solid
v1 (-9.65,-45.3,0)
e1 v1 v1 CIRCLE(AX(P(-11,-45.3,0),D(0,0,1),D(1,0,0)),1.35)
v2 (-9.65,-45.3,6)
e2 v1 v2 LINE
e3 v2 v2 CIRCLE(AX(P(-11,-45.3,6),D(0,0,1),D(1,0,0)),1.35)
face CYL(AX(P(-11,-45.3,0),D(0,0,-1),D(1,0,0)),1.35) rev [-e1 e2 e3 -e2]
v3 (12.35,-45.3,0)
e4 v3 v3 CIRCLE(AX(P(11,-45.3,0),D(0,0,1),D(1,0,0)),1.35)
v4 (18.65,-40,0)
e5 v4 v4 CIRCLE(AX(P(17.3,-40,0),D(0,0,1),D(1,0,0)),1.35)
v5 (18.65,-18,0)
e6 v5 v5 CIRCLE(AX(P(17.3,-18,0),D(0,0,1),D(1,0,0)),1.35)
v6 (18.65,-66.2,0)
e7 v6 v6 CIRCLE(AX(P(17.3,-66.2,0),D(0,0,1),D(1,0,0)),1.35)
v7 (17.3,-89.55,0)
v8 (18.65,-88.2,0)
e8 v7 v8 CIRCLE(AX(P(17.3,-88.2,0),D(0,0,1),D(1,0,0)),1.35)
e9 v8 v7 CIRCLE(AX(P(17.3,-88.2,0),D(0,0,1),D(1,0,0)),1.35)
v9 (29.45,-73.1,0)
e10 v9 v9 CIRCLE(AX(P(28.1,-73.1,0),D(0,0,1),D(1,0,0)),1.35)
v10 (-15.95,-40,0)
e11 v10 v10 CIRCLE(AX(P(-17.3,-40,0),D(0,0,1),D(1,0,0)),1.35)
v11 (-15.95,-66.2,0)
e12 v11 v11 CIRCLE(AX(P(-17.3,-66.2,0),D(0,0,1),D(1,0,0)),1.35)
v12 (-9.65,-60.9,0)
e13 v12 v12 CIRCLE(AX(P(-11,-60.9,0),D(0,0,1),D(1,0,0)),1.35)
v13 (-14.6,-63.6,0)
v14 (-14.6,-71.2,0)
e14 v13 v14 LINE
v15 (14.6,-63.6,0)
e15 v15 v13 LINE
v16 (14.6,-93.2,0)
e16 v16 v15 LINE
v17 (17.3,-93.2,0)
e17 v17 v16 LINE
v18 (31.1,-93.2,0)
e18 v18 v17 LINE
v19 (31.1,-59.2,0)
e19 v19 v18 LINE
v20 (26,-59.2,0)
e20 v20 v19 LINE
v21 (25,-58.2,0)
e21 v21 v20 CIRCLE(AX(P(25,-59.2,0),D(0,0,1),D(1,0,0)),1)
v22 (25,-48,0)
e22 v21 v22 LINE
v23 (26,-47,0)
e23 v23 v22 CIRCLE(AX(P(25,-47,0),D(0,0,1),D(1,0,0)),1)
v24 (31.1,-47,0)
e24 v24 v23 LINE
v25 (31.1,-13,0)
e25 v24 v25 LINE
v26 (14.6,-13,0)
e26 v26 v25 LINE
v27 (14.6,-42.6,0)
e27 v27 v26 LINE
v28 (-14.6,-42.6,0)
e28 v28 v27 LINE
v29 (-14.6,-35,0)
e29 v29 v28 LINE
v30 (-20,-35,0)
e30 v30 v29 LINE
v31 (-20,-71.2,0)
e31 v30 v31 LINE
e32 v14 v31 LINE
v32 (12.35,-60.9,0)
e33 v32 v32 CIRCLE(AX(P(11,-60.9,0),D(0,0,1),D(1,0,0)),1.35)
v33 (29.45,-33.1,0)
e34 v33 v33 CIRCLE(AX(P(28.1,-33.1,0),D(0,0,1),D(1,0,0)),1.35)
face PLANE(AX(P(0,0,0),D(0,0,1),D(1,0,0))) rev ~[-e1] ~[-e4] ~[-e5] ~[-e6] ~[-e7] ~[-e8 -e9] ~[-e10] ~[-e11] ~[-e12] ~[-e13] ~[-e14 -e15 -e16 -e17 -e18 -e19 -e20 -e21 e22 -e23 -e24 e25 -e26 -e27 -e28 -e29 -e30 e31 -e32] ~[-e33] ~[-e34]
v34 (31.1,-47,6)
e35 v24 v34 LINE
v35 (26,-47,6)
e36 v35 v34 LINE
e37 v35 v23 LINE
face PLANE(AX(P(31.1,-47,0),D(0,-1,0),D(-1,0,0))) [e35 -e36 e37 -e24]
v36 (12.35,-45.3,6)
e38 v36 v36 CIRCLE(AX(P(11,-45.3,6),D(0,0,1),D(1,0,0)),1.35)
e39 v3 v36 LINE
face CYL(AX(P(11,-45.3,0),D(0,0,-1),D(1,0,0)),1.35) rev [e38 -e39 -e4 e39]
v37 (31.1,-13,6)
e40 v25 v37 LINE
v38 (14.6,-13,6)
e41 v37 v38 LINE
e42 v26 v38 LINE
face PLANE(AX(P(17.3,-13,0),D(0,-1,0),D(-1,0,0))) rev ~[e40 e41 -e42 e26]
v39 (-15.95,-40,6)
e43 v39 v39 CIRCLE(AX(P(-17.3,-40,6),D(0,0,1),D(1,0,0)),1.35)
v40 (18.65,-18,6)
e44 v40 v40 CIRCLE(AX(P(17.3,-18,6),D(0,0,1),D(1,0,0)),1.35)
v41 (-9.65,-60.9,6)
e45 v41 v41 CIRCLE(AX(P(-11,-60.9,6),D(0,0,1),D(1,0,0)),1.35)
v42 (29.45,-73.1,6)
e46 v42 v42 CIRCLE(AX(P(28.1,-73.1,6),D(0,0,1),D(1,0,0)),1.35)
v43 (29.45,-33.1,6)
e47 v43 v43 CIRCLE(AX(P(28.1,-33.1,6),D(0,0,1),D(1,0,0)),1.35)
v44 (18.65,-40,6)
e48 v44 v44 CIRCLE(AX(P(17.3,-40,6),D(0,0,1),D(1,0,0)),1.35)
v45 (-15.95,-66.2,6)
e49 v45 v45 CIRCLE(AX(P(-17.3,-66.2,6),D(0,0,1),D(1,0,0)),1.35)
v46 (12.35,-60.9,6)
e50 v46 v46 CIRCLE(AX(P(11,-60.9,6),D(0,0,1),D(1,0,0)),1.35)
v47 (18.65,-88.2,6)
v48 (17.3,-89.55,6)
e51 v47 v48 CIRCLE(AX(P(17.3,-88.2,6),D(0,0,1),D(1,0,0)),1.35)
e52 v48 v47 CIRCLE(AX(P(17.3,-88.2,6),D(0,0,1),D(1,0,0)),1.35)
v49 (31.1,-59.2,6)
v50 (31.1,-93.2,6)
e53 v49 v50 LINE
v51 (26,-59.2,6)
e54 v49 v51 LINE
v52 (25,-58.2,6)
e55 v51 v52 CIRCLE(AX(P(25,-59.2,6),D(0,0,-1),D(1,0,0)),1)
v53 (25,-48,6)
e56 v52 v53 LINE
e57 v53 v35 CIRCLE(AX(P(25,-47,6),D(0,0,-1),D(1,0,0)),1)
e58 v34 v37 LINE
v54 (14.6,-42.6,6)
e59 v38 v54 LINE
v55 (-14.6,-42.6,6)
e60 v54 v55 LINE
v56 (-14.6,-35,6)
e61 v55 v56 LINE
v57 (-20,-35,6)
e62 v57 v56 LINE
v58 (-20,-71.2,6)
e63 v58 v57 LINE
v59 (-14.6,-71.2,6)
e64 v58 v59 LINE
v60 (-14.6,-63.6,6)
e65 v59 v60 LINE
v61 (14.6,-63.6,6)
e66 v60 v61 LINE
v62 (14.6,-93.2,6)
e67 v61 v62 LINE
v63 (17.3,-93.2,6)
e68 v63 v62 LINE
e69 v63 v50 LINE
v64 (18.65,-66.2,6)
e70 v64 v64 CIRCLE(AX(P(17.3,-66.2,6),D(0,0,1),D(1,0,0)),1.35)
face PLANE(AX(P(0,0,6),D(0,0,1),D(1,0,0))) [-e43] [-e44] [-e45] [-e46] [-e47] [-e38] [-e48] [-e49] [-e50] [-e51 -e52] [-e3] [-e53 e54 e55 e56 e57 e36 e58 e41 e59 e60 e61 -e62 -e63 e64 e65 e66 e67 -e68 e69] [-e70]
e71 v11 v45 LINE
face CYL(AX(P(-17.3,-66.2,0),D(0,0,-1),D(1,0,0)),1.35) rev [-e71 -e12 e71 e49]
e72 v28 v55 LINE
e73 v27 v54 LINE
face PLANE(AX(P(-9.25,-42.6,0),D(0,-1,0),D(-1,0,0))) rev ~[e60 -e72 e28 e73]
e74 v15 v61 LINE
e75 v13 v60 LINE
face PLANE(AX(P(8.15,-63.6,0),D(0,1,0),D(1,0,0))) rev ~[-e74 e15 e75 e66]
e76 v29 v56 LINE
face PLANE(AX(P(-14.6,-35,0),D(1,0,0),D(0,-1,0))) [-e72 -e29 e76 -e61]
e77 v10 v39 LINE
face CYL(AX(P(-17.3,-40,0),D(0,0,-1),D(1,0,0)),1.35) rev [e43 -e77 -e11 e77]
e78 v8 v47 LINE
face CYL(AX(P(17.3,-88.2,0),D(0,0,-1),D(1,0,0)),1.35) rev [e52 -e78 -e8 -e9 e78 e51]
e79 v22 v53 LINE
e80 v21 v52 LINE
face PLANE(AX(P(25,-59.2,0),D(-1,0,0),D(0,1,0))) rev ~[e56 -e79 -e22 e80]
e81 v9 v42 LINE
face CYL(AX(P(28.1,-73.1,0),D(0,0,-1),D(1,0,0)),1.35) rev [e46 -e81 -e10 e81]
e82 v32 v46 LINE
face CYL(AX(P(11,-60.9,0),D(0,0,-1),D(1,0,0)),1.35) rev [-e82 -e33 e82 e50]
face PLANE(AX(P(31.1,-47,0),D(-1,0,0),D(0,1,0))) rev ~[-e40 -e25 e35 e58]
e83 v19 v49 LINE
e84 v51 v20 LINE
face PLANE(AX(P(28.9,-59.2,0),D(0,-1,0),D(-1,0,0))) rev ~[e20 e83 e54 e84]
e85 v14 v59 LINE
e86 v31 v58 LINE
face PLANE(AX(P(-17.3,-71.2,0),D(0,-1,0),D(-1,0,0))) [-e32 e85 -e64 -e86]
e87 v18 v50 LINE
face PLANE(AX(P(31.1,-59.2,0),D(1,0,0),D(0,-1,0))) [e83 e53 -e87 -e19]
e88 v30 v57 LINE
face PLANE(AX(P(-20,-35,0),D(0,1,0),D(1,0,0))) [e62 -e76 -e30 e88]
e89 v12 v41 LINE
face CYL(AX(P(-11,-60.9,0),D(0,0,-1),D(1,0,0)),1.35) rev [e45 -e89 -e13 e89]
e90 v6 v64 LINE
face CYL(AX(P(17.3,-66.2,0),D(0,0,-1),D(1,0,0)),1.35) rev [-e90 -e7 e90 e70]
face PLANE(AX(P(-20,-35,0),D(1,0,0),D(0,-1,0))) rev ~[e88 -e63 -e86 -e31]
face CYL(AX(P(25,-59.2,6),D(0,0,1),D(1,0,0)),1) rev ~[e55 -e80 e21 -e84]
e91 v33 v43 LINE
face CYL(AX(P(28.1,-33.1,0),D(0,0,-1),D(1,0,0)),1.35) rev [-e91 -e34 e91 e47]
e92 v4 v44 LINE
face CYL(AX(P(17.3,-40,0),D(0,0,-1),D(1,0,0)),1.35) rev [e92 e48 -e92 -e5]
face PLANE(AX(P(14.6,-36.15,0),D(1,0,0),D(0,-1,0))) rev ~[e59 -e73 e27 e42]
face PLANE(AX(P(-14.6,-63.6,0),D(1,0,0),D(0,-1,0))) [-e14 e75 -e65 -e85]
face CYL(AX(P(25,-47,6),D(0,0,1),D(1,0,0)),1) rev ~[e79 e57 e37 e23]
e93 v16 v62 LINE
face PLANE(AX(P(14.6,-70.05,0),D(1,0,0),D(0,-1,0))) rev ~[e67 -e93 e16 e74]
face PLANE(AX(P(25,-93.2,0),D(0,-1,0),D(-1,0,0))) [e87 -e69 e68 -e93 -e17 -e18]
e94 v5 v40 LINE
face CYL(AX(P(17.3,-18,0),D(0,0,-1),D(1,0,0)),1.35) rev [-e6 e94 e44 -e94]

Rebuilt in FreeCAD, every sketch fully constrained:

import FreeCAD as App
import Part
import Sketcher
Q = App.Units.Quantity


def add_polygon(sketch, points):
    """Adds a closed chain of lines whose ends are joined by coincident constraints."""
    first, n = sketch.GeometryCount, len(points)
    for a, b in zip(points, points[1:] + points[:1]):
        sketch.addGeometry(Part.LineSegment(App.Vector(*a, 0), App.Vector(*b, 0)), False)
    for i in range(n):
        sketch.addConstraint(Sketcher.Constraint("Coincident", first + i, 2, first + (i + 1) % n, 1))

doc = App.newDocument("Part")
body = doc.addObject("PartDesign::Body", "Body")

sketch1 = doc.addObject("Sketcher::SketchObject", "Sketch")
body.addObject(sketch1)
sketch1.AttachmentSupport = (doc.XY_Plane, [""])
sketch1.MapMode = "FlatFace"
add_polygon(sketch1, [(-20, -35), (-20, -71.2), (-14.6, -71.2), (-14.6, -63.6), (14.6, -63.6), (14.6, -93.2), (17.3, -93.2), (31.1, -93.2), (31.1, -59.2), (25, -59.2), (25, -47), (31.1, -47), (31.1, -13), (14.6, -13), (14.6, -42.6), (-14.6, -42.6), (-14.6, -35)])
sketch1.addGeometry(Part.Circle(App.Vector(-17.3, -40, 0), App.Vector(0, 0, 1), 1.4), False)
sketch1.addGeometry(Part.Circle(App.Vector(-11, -45.3, 0), App.Vector(0, 0, 1), 1.4), False)
sketch1.addGeometry(Part.Circle(App.Vector(11, -45.3, 0), App.Vector(0, 0, 1), 1.4), False)
sketch1.addGeometry(Part.Circle(App.Vector(17.3, -40, 0), App.Vector(0, 0, 1), 1.4), False)
sketch1.addGeometry(Part.Circle(App.Vector(17.3, -18, 0), App.Vector(0, 0, 1), 1.4), False)
sketch1.addGeometry(Part.Circle(App.Vector(-17.3, -66.2, 0), App.Vector(0, 0, 1), 1.4), False)
sketch1.addGeometry(Part.Circle(App.Vector(-11, -60.9, 0), App.Vector(0, 0, 1), 1.4), False)
sketch1.addGeometry(Part.Circle(App.Vector(11, -60.9, 0), App.Vector(0, 0, 1), 1.4), False)
sketch1.addGeometry(Part.Circle(App.Vector(28.1, -33.1, 0), App.Vector(0, 0, 1), 1.4), False)
sketch1.addGeometry(Part.Circle(App.Vector(28.1, -73.1, 0), App.Vector(0, 0, 1), 1.4), False)
sketch1.addGeometry(Part.Circle(App.Vector(17.3, -88.2, 0), App.Vector(0, 0, 1), 1.4), False)
sketch1.addGeometry(Part.Circle(App.Vector(17.3, -66.2, 0), App.Vector(0, 0, 1), 1.4), False)
sketch1.addConstraint(Sketcher.Constraint("Vertical", 0))
sketch1.addConstraint(Sketcher.Constraint("Horizontal", 1))
sketch1.addConstraint(Sketcher.Constraint("Vertical", 2))
sketch1.addConstraint(Sketcher.Constraint("Horizontal", 3))
sketch1.addConstraint(Sketcher.Constraint("Vertical", 4))
sketch1.addConstraint(Sketcher.Constraint("Horizontal", 5))
sketch1.addConstraint(Sketcher.Constraint("Horizontal", 6))
sketch1.addConstraint(Sketcher.Constraint("Vertical", 7))
sketch1.addConstraint(Sketcher.Constraint("Horizontal", 8))
sketch1.addConstraint(Sketcher.Constraint("Vertical", 9))
sketch1.addConstraint(Sketcher.Constraint("Horizontal", 10))
sketch1.addConstraint(Sketcher.Constraint("Vertical", 11))
sketch1.addConstraint(Sketcher.Constraint("Horizontal", 12))
sketch1.addConstraint(Sketcher.Constraint("Vertical", 13))
sketch1.addConstraint(Sketcher.Constraint("Horizontal", 14))
sketch1.addConstraint(Sketcher.Constraint("Vertical", 15))
sketch1.addConstraint(Sketcher.Constraint("Horizontal", 16))
sketch1.addConstraint(Sketcher.Constraint("Equal", 17, 18))
sketch1.addConstraint(Sketcher.Constraint("Equal", 18, 19))
sketch1.addConstraint(Sketcher.Constraint("Equal", 19, 20))
sketch1.addConstraint(Sketcher.Constraint("Equal", 20, 21))
sketch1.addConstraint(Sketcher.Constraint("Equal", 21, 22))
sketch1.addConstraint(Sketcher.Constraint("Equal", 22, 23))
sketch1.addConstraint(Sketcher.Constraint("Equal", 23, 24))
sketch1.addConstraint(Sketcher.Constraint("Equal", 24, 25))
sketch1.addConstraint(Sketcher.Constraint("Equal", 25, 26))
sketch1.addConstraint(Sketcher.Constraint("Equal", 26, 27))
sketch1.addConstraint(Sketcher.Constraint("Equal", 27, 28))
sketch1.addConstraint(Sketcher.Constraint("Symmetric", 18, 3, 19, 3, -2))
sketch1.addConstraint(Sketcher.Constraint("Symmetric", 17, 3, 20, 3, -2))
sketch1.addConstraint(Sketcher.Constraint("Symmetric", 23, 3, 24, 3, -2))
sketch1.addConstraint(Sketcher.Constraint("Symmetric", 22, 3, 28, 3, -2))
sketch1.addConstraint(Sketcher.Constraint("Vertical", 20, 3, 21, 3))
sketch1.addConstraint(Sketcher.Constraint("Vertical", 17, 3, 22, 3))
sketch1.addConstraint(Sketcher.Constraint("Vertical", 18, 3, 23, 3))
sketch1.addConstraint(Sketcher.Constraint("Vertical", 25, 3, 26, 3))
sketch1.addConstraint(Sketcher.Constraint("Vertical", 21, 3, 27, 3))
sketch1.addConstraint(Sketcher.Constraint("Vertical", 28, 3, 5, 2))
sketch1.addConstraint(Sketcher.Constraint("Vertical", 7, 2, 10, 2))
sketch1.addConstraint(Sketcher.Constraint("Vertical", 4, 2, 12, 2))
sketch1.addConstraint(Sketcher.Constraint("Vertical", 2, 2, 14, 2))
sketch1.addConstraint(Sketcher.Constraint("Equal", 7, 11))
sketch1.addConstraint(Sketcher.Constraint("Equal", 4, 13))
sketch1.addConstraint(Sketcher.Constraint("Equal", 2, 15))
sketch1.addConstraint(Sketcher.Constraint("Diameter", 17, Q("2.7 mm")))
sketch1.addConstraint(Sketcher.Constraint("DistanceX", 5, 1, 5, 2, Q("2.7 mm")))
sketch1.addConstraint(Sketcher.Constraint("DistanceX", 8, 2, 8, 1, Q("6.1 mm")))
sketch1.addConstraint(Sketcher.Constraint("DistanceY", 9, 1, 9, 2, Q("12.2 mm")))
sketch1.addConstraint(Sketcher.Constraint("DistanceY", 0, 2, 22, 3, Q("5 mm")))
sketch1.addConstraint(Sketcher.Constraint("DistanceY", 4, 2, 27, 3, Q("5 mm")))
sketch1.addConstraint(Sketcher.Constraint("DistanceY", 21, 3, 11, 2, Q("5 mm")))
sketch1.addConstraint(Sketcher.Constraint("DistanceY", 17, 3, 15, 2, Q("5 mm")))
sketch1.addConstraint(Sketcher.Constraint("DistanceY", 19, 3, 25, 3, Q("12.2 mm")))
sketch1.addConstraint(Sketcher.Constraint("DistanceY", 26, 3, 24, 3, Q("12.2 mm")))
sketch1.addConstraint(Sketcher.Constraint("DistanceX", 0, 2, 22, 3, Q("2.7 mm")))
sketch1.addConstraint(Sketcher.Constraint("DistanceX", 22, 3, 1, 2, Q("2.7 mm")))
sketch1.addConstraint(Sketcher.Constraint("DistanceY", 2, 2, 23, 3, Q("2.7 mm")))
sketch1.addConstraint(Sketcher.Constraint("DistanceY", 19, 3, 13, 2, Q("2.7 mm")))
sketch1.addConstraint(Sketcher.Constraint("DistanceY", 7, 1, 7, 2, Q("34 mm")))
sketch1.addConstraint(Sketcher.Constraint("DistanceX", 3, 1, 3, 2, Q("29.2 mm")))
sketch1.addConstraint(Sketcher.Constraint("DistanceX", 6, 1, 6, 2, Q("13.8 mm")))
sketch1.addConstraint(Sketcher.Constraint("DistanceY", 0, 2, 0, 1, Q("36.2 mm")))
sketch1.addConstraint(Sketcher.Constraint("DistanceY", 2, 1, 2, 2, Q("7.6 mm")))
sketch1.addConstraint(Sketcher.Constraint("DistanceY", 17, 3, -1, 1, Q("40 mm")))
sketch1.addConstraint(Sketcher.Constraint("DistanceX", 18, 3, -1, 1, Q("11 mm")))
sketch1.addConstraint(Sketcher.Constraint("DistanceX", 26, 3, 6, 2, Q("3 mm")))
pad1 = doc.addObject("PartDesign::Pad", "Pad")
body.addObject(pad1)
pad1.Profile = sketch1
pad1.Length = 6

sketch2 = doc.addObject("Sketcher::SketchObject", "Sketch001")
body.addObject(sketch2)
sketch2.AttachmentSupport = (doc.XY_Plane, [""])
sketch2.MapMode = "FlatFace"
sketch2.AttachmentOffset = App.Placement(App.Vector(0, 0, 6), App.Rotation())
sketch2.addGeometry(Part.Circle(App.Vector(25, -47, 0), App.Vector(0, 0, 1), 1), False)
sketch2.addGeometry(Part.Circle(App.Vector(25, -59.2, 0), App.Vector(0, 0, 1), 1), False)
sketch2.addConstraint(Sketcher.Constraint("Equal", 0, 1))
sketch2.addConstraint(Sketcher.Constraint("Vertical", 0, 3, 1, 3))
sketch2.addConstraint(Sketcher.Constraint("Diameter", 0, Q("2 mm")))
sketch2.addConstraint(Sketcher.Constraint("DistanceX", -1, 1, 0, 3, Q("25 mm")))
sketch2.addConstraint(Sketcher.Constraint("DistanceY", 0, 3, -1, 1, Q("47 mm")))
sketch2.addConstraint(Sketcher.Constraint("DistanceY", 1, 3, -1, 1, Q("59.2 mm")))
pocket1 = doc.addObject("PartDesign::Pocket", "Pocket")
body.addObject(pocket1)
pocket1.Profile = sketch2
pocket1.Length = 6

doc.recompute()
